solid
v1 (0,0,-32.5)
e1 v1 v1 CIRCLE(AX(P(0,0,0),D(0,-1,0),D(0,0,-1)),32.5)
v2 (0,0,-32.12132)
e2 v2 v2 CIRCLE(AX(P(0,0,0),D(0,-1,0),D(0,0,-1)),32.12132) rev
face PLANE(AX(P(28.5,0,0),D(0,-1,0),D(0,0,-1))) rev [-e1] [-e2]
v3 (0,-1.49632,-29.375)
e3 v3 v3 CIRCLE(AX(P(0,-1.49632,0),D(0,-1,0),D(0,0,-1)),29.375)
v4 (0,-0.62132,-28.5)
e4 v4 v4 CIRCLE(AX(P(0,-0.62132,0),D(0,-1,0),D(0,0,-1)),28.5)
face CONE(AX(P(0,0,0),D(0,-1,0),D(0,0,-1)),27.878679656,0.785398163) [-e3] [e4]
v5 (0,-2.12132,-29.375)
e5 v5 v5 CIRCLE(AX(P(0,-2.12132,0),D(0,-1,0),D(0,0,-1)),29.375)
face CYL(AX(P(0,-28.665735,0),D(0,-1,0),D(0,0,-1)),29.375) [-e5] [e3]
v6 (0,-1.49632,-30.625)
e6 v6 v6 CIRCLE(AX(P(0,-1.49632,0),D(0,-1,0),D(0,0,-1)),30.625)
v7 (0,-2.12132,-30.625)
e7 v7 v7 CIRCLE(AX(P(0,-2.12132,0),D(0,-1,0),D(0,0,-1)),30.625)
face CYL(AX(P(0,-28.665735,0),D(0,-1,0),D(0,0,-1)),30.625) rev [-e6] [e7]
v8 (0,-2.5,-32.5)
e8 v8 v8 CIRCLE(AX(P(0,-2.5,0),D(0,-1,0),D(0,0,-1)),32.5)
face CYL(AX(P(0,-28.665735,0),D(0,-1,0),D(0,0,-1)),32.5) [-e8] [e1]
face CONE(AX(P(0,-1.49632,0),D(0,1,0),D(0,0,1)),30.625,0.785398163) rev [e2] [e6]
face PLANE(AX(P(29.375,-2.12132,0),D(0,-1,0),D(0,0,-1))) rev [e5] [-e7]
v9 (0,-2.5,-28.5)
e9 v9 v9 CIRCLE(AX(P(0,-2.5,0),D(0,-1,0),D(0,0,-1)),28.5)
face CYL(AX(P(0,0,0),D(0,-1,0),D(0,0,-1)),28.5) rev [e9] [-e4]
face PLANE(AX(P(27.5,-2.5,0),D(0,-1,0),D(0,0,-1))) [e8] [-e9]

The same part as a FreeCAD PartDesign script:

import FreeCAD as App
import Part
import Sketcher

V = App.Vector


def add_polygon(sketch, points):
    """Adds a closed chain of lines whose ends are joined by coincident constraints."""
    first, n = sketch.GeometryCount, len(points)
    for a, b in zip(points, points[1:] + points[:1]):
        sketch.addGeometry(Part.LineSegment(App.Vector(*a, 0), App.Vector(*b, 0)), False)
    for i in range(n):
        sketch.addConstraint(Sketcher.Constraint("Coincident", first + i, 2, first + (i + 1) % n, 1))

doc = App.newDocument("Part")
body = doc.addObject("PartDesign::Body", "Body")

# Sketch on XY plane
sketch1 = doc.addObject("Sketcher::SketchObject", "Sketch")
body.addObject(sketch1)
sketch1.AttachmentSupport = (doc.XY_Plane, [""])
sketch1.MapMode = "FlatFace"
add_polygon(sketch1, [(27.5, 2.5), (27.5, -2.5), (32.5, -2.5), (32.5, 2.5)])  # lines 0-3
add_polygon(sketch1, [(29.4, -2.1), (29.4, -1.5), (27.9, 0), (29.4, 1.5), (29.4, 2.1), (30.6, 2.1), (30.6, 1.5), (32.1, 0), (30.6, -1.5), (30.6, -2.1)])  # lines 4-13
sketch1.addConstraint([
    Sketcher.Constraint("Vertical", 0),
    Sketcher.Constraint("Horizontal", 1),
    Sketcher.Constraint("Vertical", 2),
    Sketcher.Constraint("Horizontal", 3),
    Sketcher.Constraint("Vertical", 4),
    Sketcher.Constraint("Vertical", 7),
    Sketcher.Constraint("Horizontal", 8),
    Sketcher.Constraint("Vertical", 9),
    Sketcher.Constraint("Vertical", 12),
    Sketcher.Constraint("Horizontal", 13),
    Sketcher.Constraint("Symmetric", 4, 2, 6, 2, -1),
    Sketcher.Constraint("Symmetric", 9, 2, 11, 2, -1),
    Sketcher.Constraint("PointOnObject", 5, 2, -1),
    Sketcher.Constraint("PointOnObject", 10, 2, -1),
    Sketcher.Constraint("Perpendicular", 5, 6),
    Sketcher.Constraint("Perpendicular", 6, 10),
    Sketcher.Constraint("Horizontal", 6, 2, 9, 2),
    Sketcher.Constraint("Equal", 3, 0),
    Sketcher.Constraint("Equal", 4, 7),
    Sketcher.Constraint("DistanceX", 1, 1, 1, 2, 5.0),
    Sketcher.Constraint("DistanceX", 8, 1, 8, 2, 1.25),
    Sketcher.Constraint("DistanceX", -1, 1, 0, 2, 27.5),
    Sketcher.Constraint("DistanceY", 0, 2, -1, 1, 2.5),
    Sketcher.Constraint("DistanceY", 4, 1, 4, 2, 0.625),
    Sketcher.Constraint("DistanceX", -1, 1, 4, 2, 29.375),
    Sketcher.Constraint("DistanceY", 4, 2, -1, 1, 1.49632),
])
revolution = doc.addObject("PartDesign::Revolution", "Revolution")
body.addObject(revolution)
revolution.Profile = sketch1
revolution.ReferenceAxis = (sketch1, ["V_Axis"])
revolution.Angle = 360

# Sketch on XY plane
sketch2 = doc.addObject("Sketcher::SketchObject", "Sketch001")
body.addObject(sketch2)
sketch2.AttachmentSupport = (doc.XY_Plane, [""])
sketch2.MapMode = "FlatFace"
add_polygon(sketch2, [(28.5, 0), (32.5, 0), (32.5, 2.5), (27.5, 2.5), (27.5, -2.5), (28.5, -2.5)])  # lines 0-5
sketch2.addConstraint([
    Sketcher.Constraint("Horizontal", 0),
    Sketcher.Constraint("Vertical", 1),
    Sketcher.Constraint("Horizontal", 2),
    Sketcher.Constraint("Vertical", 3),
    Sketcher.Constraint("Horizontal", 4),
    Sketcher.Constraint("Vertical", 5),
    Sketcher.Constraint("PointOnObject", 0, 2, -1),
    Sketcher.Constraint("Equal", 2, 3),
    Sketcher.Constraint("Equal", 1, 5),
    Sketcher.Constraint("DistanceX", 0, 1, 0, 2, 4.0),
    Sketcher.Constraint("DistanceX", 2, 2, 2, 1, 5.0),
    Sketcher.Constraint("DistanceX", -1, 1, 0, 2, 32.5),
])
groove = doc.addObject("PartDesign::Groove", "Groove")
body.addObject(groove)
groove.Profile = sketch2
groove.ReferenceAxis = (sketch2, ["V_Axis"])
groove.Angle = 360

doc.recompute()
